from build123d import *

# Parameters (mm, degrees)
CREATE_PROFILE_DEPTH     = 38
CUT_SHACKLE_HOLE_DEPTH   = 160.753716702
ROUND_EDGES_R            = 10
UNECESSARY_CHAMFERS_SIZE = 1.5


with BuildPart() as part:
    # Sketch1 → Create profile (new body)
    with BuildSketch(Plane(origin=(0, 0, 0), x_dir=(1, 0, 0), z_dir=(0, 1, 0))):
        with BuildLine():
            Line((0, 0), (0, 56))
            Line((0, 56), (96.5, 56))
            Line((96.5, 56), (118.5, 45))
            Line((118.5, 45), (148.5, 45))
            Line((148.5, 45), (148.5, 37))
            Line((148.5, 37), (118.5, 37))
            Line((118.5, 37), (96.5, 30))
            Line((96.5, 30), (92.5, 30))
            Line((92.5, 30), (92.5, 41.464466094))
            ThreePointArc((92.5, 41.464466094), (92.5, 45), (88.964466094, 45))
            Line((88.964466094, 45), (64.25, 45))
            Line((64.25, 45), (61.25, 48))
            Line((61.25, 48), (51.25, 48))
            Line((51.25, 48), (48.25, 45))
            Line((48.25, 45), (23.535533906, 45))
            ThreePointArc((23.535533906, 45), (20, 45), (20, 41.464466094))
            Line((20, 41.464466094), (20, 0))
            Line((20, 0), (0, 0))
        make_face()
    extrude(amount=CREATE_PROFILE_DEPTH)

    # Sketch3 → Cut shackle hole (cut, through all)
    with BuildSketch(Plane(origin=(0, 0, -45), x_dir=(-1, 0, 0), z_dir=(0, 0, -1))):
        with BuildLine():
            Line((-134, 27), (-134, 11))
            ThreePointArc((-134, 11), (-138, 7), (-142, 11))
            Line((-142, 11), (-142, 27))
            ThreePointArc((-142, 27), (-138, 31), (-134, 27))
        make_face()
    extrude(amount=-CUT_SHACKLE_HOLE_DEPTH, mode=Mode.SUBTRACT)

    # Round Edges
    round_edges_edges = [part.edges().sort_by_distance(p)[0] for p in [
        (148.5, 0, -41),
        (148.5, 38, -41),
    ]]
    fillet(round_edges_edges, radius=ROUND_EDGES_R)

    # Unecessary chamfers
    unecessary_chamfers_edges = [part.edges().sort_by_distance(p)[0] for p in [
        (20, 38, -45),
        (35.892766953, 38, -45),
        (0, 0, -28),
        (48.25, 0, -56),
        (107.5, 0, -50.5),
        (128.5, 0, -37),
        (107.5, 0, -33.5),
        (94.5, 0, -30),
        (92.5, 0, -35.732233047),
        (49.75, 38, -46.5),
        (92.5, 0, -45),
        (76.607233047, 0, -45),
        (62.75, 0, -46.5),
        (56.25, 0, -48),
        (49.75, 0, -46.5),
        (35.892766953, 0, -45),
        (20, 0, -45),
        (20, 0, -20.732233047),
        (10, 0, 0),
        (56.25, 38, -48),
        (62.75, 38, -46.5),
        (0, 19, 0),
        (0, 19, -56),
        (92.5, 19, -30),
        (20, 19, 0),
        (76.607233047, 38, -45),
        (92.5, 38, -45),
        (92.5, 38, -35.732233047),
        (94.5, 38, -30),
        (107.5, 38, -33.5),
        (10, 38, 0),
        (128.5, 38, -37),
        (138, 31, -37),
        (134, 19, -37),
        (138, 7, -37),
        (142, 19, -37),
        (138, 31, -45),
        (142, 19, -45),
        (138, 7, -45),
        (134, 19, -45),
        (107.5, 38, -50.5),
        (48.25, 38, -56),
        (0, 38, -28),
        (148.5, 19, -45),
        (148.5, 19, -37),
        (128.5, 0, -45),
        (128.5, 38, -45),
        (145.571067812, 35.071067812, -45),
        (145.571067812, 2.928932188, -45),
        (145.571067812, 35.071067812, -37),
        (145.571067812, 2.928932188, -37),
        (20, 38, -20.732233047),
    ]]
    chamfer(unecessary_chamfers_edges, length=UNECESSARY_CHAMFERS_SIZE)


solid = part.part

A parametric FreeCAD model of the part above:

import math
import FreeCAD as App
import Part
import Sketcher

V = App.Vector
Q = App.Units.Quantity


def edges_at(feature, points):
    """Names of the edges that pass closest to the given points."""
    edges = feature.Shape.Edges
    near = lambda p: min(range(len(edges)), key=lambda i: edges[i].distToShape(Part.Vertex(*p))[0])
    return sorted({f"Edge{near(p) + 1}" for p in points})

doc = App.newDocument("Part")
body = doc.addObject("PartDesign::Body", "Body")

# Sketch on XZ plane
sketch1 = body.newObject("Sketcher::SketchObject", "Sketch")
sketch1.AttachmentSupport = (doc.getObject("XZ_Plane"), [""])
sketch1.MapMode = "FlatFace"
sketch1.addGeometry([
    Part.LineSegment(V(0, -56, 0), V(0, 0, 0)),  # 0
    Part.LineSegment(V(0, 0, 0), V(20, 0, 0)),  # 1
    Part.LineSegment(V(20, 0, 0), V(20, -41.5, 0)),  # 2
    Part.ArcOfCircle(Part.Circle(V(21.8, -43.2, 0), V(0, 0, 1), 2.5), math.radians(135), math.radians(315)),  # 3
    Part.LineSegment(V(23.5, -45, 0), V(48.2, -45, 0)),  # 4
    Part.LineSegment(V(48.2, -45, 0), V(51.2, -48, 0)),  # 5
    Part.LineSegment(V(51.2, -48, 0), V(61.2, -48, 0)),  # 6
    Part.LineSegment(V(61.2, -48, 0), V(64.2, -45, 0)),  # 7
    Part.LineSegment(V(64.2, -45, 0), V(89, -45, 0)),  # 8
    Part.ArcOfCircle(Part.Circle(V(90.7, -43.2, 0), V(0, 0, 1), 2.5), math.radians(-135), math.radians(45)),  # 9
    Part.LineSegment(V(92.5, -41.5, 0), V(92.5, -30, 0)),  # 10
    Part.LineSegment(V(92.5, -30, 0), V(96.5, -30, 0)),  # 11
    Part.LineSegment(V(96.5, -30, 0), V(118.5, -37, 0)),  # 12
    Part.LineSegment(V(118.5, -37, 0), V(148.5, -37, 0)),  # 13
    Part.LineSegment(V(148.5, -37, 0), V(148.5, -45, 0)),  # 14
    Part.LineSegment(V(148.5, -45, 0), V(118.5, -45, 0)),  # 15
    Part.LineSegment(V(118.5, -45, 0), V(96.5, -56, 0)),  # 16
    Part.LineSegment(V(96.5, -56, 0), V(0, -56, 0)),  # 17
], False)
sketch1.addConstraint([
    Sketcher.Constraint("Coincident", 0, 2, 1, 1),
    Sketcher.Constraint("Coincident", 1, 2, 2, 1),
    Sketcher.Constraint("Coincident", 2, 2, 3, 1),
    Sketcher.Constraint("Coincident", 3, 2, 4, 1),
    Sketcher.Constraint("Coincident", 4, 2, 5, 1),
    Sketcher.Constraint("Coincident", 5, 2, 6, 1),
    Sketcher.Constraint("Coincident", 6, 2, 7, 1),
    Sketcher.Constraint("Coincident", 7, 2, 8, 1),
    Sketcher.Constraint("Coincident", 8, 2, 9, 1),
    Sketcher.Constraint("Coincident", 9, 2, 10, 1),
    Sketcher.Constraint("Coincident", 10, 2, 11, 1),
    Sketcher.Constraint("Coincident", 11, 2, 12, 1),
    Sketcher.Constraint("Coincident", 12, 2, 13, 1),
    Sketcher.Constraint("Coincident", 13, 2, 14, 1),
    Sketcher.Constraint("Coincident", 14, 2, 15, 1),
    Sketcher.Constraint("Coincident", 15, 2, 16, 1),
    Sketcher.Constraint("Coincident", 16, 2, 17, 1),
    Sketcher.Constraint("Coincident", 17, 2, 0, 1),
    Sketcher.Constraint("Vertical", 0),
    Sketcher.Constraint("Horizontal", 1),
    Sketcher.Constraint("Vertical", 2),
    Sketcher.Constraint("Horizontal", 4),
    Sketcher.Constraint("Horizontal", 6),
    Sketcher.Constraint("Horizontal", 8),
    Sketcher.Constraint("Vertical", 10),
    Sketcher.Constraint("Horizontal", 11),
    Sketcher.Constraint("Horizontal", 13),
    Sketcher.Constraint("Vertical", 14),
    Sketcher.Constraint("Horizontal", 15),
    Sketcher.Constraint("Horizontal", 17),
    Sketcher.Constraint("Coincident", 0, 2, -1, 1),
    Sketcher.Constraint("Equal", 3, 9),
    Sketcher.Constraint("Perpendicular", 5, 7),
    Sketcher.Constraint("Horizontal", 3, 3, 9, 3),
    Sketcher.Constraint("Horizontal", 4, 2, 7, 2),
    Sketcher.Constraint("Horizontal", 2, 2, 9, 2),
    Sketcher.Constraint("Horizontal", 8, 2, 14, 2),
    Sketcher.Constraint("Vertical", 12, 2, 15, 2),
    Sketcher.Constraint("Vertical", 11, 2, 16, 2),
    Sketcher.Constraint("Equal", 4, 8),
    Sketcher.Constraint("Equal", 5, 7),
    Sketcher.Constraint("Radius", 3, Q("2.5 mm")),
    Sketcher.Constraint("DistanceX", 1, 1, 1, 2, Q("20 mm")),
    Sketcher.Constraint("DistanceX", 6, 1, 6, 2, Q("10 mm")),
    Sketcher.Constraint("DistanceX", 11, 1, 11, 2, Q("4 mm")),
    Sketcher.Constraint("DistanceX", 13, 1, 13, 2, Q("30 mm")),
    Sketcher.Constraint("DistanceY", 0, 1, 0, 2, Q("56 mm")),
    Sketcher.Constraint("DistanceY", 14, 2, 14, 1, Q("8 mm")),
    Sketcher.Constraint("DistanceX", 17, 2, 17, 1, Q("96.5 mm")),
    Sketcher.Constraint("DistanceY", 3, 2, -1, 1, Q("45 mm")),
    Sketcher.Constraint("DistanceY", 5, 2, -1, 1, Q("48 mm")),
    Sketcher.Constraint("DistanceY", 10, 2, -1, 1, Q("30 mm")),
    Sketcher.Constraint("DistanceX", 11, 2, 12, 2, Q("22 mm")),
    Sketcher.Constraint("DistanceX", 3, 2, 9, 3, Q("67.196699 mm")),
    Sketcher.Constraint("DistanceX", 4, 1, 4, 2, Q("24.714466 mm")),
])
pad1 = body.newObject("PartDesign::Pad", "Pad")
pad1.Profile = sketch1
pad1.Length = 38
pad1.Reversed = True

# Sketch on XY plane
sketch2 = body.newObject("Sketcher::SketchObject", "Sketch001")
sketch2.AttachmentSupport = (doc.getObject("XY_Plane"), [""])
sketch2.MapMode = "FlatFace"
sketch2.AttachmentOffset = App.Placement(V(0, 0, -45), App.Rotation())
sketch2.addGeometry([
    Part.LineSegment(V(134, 11, 0), V(134, 27, 0)),
    Part.ArcOfCircle(Part.Circle(V(138, 27, 0), V(0, 0, 1), 4), math.radians(0), math.radians(180)),
    Part.LineSegment(V(142, 27, 0), V(142, 11, 0)),
    Part.ArcOfCircle(Part.Circle(V(138, 11, 0), V(0, 0, 1), 4), math.radians(180), math.radians(360)),
], False)
sketch2.addConstraint([
    Sketcher.Constraint("Tangent", 0, 2, 1, 2),
    Sketcher.Constraint("Tangent", 1, 1, 2, 1),
    Sketcher.Constraint("Tangent", 2, 2, 3, 2),
    Sketcher.Constraint("Tangent", 3, 1, 0, 1),
    Sketcher.Constraint("Vertical", 0),
    Sketcher.Constraint("Vertical", 2),
    Sketcher.Constraint("Radius", 1, Q("4 mm")),
    Sketcher.Constraint("DistanceY", 0, 1, 0, 2, Q("16 mm")),
    Sketcher.Constraint("DistanceX", -1, 1, 1, 3, Q("138 mm")),
    Sketcher.Constraint("DistanceY", -1, 1, 1, 3, Q("27 mm")),
])
pocket1 = body.newObject("PartDesign::Pocket", "Pocket")
pocket1.Profile = sketch2
pocket1.Type = "ThroughAll"
pocket1.Reversed = True
doc.recompute()

fillet = body.newObject("PartDesign::Fillet", "Fillet")
fillet.Base = (pocket1, edges_at(pocket1, [(148.5, 0, -41), (148.5, 38, -41)]))
fillet.Radius = 10
doc.recompute()

chamfer = body.newObject("PartDesign::Chamfer", "Chamfer")
chamfer.Base = (fillet, edges_at(fillet, [
    (20, 38, -45),
    (35.893, 38, -45),
    (0, 0, -28),
    (48.25, 0, -56),
    (107.5, 0, -50.5),
    (128.5, 0, -37),
    (107.5, 0, -33.5),
    (94.5, 0, -30),
    (92.5, 0, -35.732),
    (49.75, 38, -46.5),
    (92.5, 0, -45),
    (76.607, 0, -45),
    (62.75, 0, -46.5),
    (56.25, 0, -48),
    (49.75, 0, -46.5),
    (35.893, 0, -45),
    (20, 0, -45),
    (20, 0, -20.732),
    (10, 0, 0),
    (56.25, 38, -48),
    (62.75, 38, -46.5),
    (0, 19, 0),
    (0, 19, -56),
    (92.5, 19, -30),
    (20, 19, 0),
    (76.607, 38, -45),
    (92.5, 38, -45),
    (92.5, 38, -35.732),
    (94.5, 38, -30),
    (107.5, 38, -33.5),
    (10, 38, 0),
    (128.5, 38, -37),
    (138, 31, -37),
    (134, 19, -37),
    (138, 7, -37),
    (142, 19, -37),
    (138, 31, -45),
    (142, 19, -45),
    (138, 7, -45),
    (134, 19, -45),
    (107.5, 38, -50.5),
    (48.25, 38, -56),
    (0, 38, -28),
    (148.5, 19, -45),
    (148.5, 19, -37),
    (128.5, 0, -45),
    (128.5, 38, -45),
    (145.571, 35.071, -45),
    (145.571, 2.929, -45),
    (145.571, 35.071, -37),
    (145.571, 2.929, -37),
    (20, 38, -20.732),
]))
chamfer.Size = 1.5

doc.recompute()
